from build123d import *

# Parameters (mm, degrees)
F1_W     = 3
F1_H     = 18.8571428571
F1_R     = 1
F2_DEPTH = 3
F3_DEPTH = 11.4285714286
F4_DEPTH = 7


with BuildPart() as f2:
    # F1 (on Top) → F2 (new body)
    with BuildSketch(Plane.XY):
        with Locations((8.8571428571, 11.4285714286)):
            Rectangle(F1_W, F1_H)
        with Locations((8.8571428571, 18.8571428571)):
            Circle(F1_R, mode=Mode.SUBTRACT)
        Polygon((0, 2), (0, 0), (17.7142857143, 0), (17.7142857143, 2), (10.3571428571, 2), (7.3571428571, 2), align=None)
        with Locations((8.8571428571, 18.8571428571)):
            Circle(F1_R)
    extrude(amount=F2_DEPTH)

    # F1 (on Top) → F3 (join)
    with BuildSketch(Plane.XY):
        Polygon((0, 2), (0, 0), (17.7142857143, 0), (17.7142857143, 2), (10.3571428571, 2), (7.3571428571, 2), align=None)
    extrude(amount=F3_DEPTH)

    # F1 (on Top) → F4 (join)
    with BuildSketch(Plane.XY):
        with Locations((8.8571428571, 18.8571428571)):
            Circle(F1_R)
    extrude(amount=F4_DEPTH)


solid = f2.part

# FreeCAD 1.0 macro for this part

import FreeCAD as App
import Part
import Sketcher

V = App.Vector

doc = App.newDocument("Part")
body = doc.addObject("PartDesign::Body", "Body")

sketch1 = body.newObject("Sketcher::SketchObject", "Sketch")
sketch1.AttachmentSupport = (doc.getObject("XY_Plane"), [""])
sketch1.MapMode = "FlatFace"
sketch1.addGeometry([
    Part.LineSegment(V(7.357143, 20.857143, 0), V(7.357143, 2, 0)),
    Part.LineSegment(V(7.357143, 2, 0), V(0, 2, 0)),
    Part.LineSegment(V(0, 2, 0), V(0, 0, 0)),
    Part.LineSegment(V(0, 0, 0), V(17.714286, 0, 0)),
    Part.LineSegment(V(17.714286, 0, 0), V(17.714286, 2, 0)),
    Part.LineSegment(V(17.714286, 2, 0), V(10.357143, 2, 0)),
    Part.LineSegment(V(10.357143, 2, 0), V(10.357143, 20.857143, 0)),
    Part.LineSegment(V(10.357143, 20.857143, 0), V(7.357143, 20.857143, 0)),
], False)
sketch1.addConstraint([
    Sketcher.Constraint("Coincident", 0, 2, 1, 1),
    Sketcher.Constraint("Coincident", 1, 2, 2, 1),
    Sketcher.Constraint("Coincident", 2, 2, 3, 1),
    Sketcher.Constraint("Coincident", 3, 2, 4, 1),
    Sketcher.Constraint("Coincident", 4, 2, 5, 1),
    Sketcher.Constraint("Coincident", 5, 2, 6, 1),
    Sketcher.Constraint("Coincident", 6, 2, 7, 1),
    Sketcher.Constraint("Coincident", 7, 2, 0, 1),
    Sketcher.Constraint("Vertical", 0),
    Sketcher.Constraint("Horizontal", 1),
    Sketcher.Constraint("Vertical", 2),
    Sketcher.Constraint("Horizontal", 3),
    Sketcher.Constraint("Vertical", 4),
    Sketcher.Constraint("Horizontal", 5),
    Sketcher.Constraint("Vertical", 6),
    Sketcher.Constraint("Horizontal", 7),
    Sketcher.Constraint("Coincident", 2, 2, -1, 1),
    Sketcher.Constraint("Horizontal", 1, 2, 4, 2),
    Sketcher.Constraint("Equal", 1, 5),
    Sketcher.Constraint("DistanceX", 7, 2, 7, 1, 3.0),
    Sketcher.Constraint("DistanceY", 2, 2, 2, 1, 2.0),
    Sketcher.Constraint("DistanceX", 1, 2, 1, 1, 7.357143),
    Sketcher.Constraint("DistanceY", 0, 2, 0, 1, 18.857143),
])
pad1 = body.newObject("PartDesign::Pad", "Pad")
pad1.Profile = sketch1
pad1.Length = 3

sketch2 = body.newObject("Sketcher::SketchObject", "Sketch001")
sketch2.AttachmentSupport = (doc.getObject("XY_Plane"), [""])
sketch2.MapMode = "FlatFace"
sketch2.addGeometry([
    Part.LineSegment(V(0, 2, 0), V(0, 0, 0)),
    Part.LineSegment(V(0, 0, 0), V(17.714286, 0, 0)),
    Part.LineSegment(V(17.714286, 0, 0), V(17.714286, 2, 0)),
    Part.LineSegment(V(17.714286, 2, 0), V(0, 2, 0)),
], False)
sketch2.addConstraint([
    Sketcher.Constraint("Coincident", 0, 2, 1, 1),
    Sketcher.Constraint("Coincident", 1, 2, 2, 1),
    Sketcher.Constraint("Coincident", 2, 2, 3, 1),
    Sketcher.Constraint("Coincident", 3, 2, 0, 1),
    Sketcher.Constraint("Vertical", 0),
    Sketcher.Constraint("Horizontal", 1),
    Sketcher.Constraint("Vertical", 2),
    Sketcher.Constraint("Horizontal", 3),
    Sketcher.Constraint("Coincident", 0, 2, -1, 1),
    Sketcher.Constraint("DistanceY", 0, 2, 0, 1, 2.0),
    Sketcher.Constraint("DistanceX", 1, 1, 1, 2, 17.714286),
])
pad2 = body.newObject("PartDesign::Pad", "Pad001")
pad2.Profile = sketch2
pad2.Length = 11.428571

sketch3 = body.newObject("Sketcher::SketchObject", "Sketch002")
sketch3.AttachmentSupport = (doc.getObject("XY_Plane"), [""])
sketch3.MapMode = "FlatFace"
sketch3.addGeometry(Part.Circle(V(8.857143, 18.857143, 0), V(0, 0, 1), 1), False)
sketch3.addConstraint([
    Sketcher.Constraint("Diameter", 0, 2.0),
    Sketcher.Constraint("DistanceX", -1, 1, 0, 3, 8.857143),
    Sketcher.Constraint("DistanceY", -1, 1, 0, 3, 18.857143),
])
pad3 = body.newObject("PartDesign::Pad", "Pad002")
pad3.Profile = sketch3
pad3.Length = 7

doc.recompute()
